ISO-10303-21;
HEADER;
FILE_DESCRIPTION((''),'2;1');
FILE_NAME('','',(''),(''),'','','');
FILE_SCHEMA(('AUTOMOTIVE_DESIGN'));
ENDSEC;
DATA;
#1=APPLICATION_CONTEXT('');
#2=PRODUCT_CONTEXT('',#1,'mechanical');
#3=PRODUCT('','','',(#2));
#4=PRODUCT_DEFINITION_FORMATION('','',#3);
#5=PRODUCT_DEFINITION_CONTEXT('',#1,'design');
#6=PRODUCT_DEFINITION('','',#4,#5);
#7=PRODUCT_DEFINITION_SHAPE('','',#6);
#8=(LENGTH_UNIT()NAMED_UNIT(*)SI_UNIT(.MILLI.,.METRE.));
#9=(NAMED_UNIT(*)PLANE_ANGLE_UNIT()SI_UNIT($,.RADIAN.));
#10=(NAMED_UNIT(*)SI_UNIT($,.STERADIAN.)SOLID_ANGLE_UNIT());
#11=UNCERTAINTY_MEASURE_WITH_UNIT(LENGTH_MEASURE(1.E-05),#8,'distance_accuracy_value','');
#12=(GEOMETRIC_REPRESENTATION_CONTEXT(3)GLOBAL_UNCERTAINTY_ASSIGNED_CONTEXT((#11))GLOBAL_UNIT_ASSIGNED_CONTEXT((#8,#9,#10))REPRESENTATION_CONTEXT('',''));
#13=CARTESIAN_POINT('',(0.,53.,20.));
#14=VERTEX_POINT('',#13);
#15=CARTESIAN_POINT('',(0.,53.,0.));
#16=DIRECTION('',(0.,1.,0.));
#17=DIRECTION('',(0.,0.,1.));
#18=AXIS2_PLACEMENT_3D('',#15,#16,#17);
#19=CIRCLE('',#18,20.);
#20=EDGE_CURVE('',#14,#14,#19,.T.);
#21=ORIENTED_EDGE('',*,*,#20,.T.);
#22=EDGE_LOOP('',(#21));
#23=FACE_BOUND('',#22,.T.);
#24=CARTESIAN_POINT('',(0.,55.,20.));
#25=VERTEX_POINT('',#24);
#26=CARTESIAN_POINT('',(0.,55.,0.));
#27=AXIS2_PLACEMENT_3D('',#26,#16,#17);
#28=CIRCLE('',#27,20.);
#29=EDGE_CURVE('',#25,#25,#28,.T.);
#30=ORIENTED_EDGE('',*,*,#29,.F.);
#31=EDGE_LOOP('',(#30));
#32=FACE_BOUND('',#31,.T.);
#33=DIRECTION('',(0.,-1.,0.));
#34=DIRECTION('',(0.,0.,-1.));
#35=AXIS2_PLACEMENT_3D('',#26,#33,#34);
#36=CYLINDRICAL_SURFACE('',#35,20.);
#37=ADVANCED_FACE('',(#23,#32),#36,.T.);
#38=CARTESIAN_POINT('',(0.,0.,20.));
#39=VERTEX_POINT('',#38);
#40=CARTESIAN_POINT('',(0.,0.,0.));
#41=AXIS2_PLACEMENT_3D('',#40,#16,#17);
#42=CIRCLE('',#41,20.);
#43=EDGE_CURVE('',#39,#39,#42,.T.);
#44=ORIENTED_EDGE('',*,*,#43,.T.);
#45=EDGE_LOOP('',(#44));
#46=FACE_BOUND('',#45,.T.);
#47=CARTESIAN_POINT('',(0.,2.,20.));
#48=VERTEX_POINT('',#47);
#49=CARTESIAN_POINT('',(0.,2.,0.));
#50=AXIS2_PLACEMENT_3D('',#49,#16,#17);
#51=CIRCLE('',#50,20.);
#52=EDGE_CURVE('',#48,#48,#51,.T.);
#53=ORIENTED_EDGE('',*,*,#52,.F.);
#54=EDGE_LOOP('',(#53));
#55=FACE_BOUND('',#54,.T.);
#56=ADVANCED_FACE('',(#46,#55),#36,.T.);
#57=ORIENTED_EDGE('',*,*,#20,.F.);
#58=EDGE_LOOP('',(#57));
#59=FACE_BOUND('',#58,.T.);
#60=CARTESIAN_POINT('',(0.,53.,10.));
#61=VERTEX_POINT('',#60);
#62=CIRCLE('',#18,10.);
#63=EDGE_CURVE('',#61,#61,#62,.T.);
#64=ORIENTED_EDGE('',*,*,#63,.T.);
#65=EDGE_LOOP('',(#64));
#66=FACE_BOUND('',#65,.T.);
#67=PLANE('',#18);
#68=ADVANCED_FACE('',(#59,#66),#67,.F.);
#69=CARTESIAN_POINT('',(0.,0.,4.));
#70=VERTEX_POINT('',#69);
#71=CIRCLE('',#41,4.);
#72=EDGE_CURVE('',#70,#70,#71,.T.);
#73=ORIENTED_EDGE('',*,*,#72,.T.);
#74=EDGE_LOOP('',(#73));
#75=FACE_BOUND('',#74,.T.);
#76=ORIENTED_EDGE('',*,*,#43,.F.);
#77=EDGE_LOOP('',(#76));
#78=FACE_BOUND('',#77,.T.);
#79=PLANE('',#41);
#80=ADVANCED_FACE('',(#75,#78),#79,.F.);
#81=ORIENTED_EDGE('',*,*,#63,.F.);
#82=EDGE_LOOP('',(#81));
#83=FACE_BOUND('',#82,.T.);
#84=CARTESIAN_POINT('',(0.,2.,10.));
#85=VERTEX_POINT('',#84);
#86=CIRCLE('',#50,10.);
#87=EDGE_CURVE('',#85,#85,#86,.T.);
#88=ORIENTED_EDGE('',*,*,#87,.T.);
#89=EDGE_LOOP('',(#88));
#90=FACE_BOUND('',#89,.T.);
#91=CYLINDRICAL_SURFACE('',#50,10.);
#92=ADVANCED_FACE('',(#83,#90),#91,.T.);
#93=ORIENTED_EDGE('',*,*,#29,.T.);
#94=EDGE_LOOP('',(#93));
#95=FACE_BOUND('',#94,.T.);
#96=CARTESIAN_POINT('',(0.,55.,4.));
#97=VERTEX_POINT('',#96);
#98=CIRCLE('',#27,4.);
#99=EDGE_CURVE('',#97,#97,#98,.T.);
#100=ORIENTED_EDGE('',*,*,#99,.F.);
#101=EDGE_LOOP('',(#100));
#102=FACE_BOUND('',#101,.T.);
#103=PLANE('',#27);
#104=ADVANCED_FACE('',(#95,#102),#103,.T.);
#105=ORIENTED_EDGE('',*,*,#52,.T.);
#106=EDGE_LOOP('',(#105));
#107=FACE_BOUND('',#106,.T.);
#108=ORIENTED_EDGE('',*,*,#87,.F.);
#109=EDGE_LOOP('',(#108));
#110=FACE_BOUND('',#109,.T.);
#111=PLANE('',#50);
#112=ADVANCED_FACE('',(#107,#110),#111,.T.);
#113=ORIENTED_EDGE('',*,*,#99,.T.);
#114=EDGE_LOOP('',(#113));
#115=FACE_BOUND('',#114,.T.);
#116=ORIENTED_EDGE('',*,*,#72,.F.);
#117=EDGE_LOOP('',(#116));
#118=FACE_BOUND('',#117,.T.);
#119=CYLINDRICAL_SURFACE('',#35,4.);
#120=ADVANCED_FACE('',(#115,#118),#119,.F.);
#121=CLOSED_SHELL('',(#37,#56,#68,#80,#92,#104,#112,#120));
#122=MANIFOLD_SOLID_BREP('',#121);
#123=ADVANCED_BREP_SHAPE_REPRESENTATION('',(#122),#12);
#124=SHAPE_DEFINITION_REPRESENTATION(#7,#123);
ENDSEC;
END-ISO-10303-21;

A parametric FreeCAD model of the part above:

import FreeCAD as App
import Part
import Sketcher

doc = App.newDocument("Part")
body = doc.addObject("PartDesign::Body", "Body")

# Sketch on XZ plane
sketch1 = body.newObject("Sketcher::SketchObject", "Sketch")
sketch1.AttachmentSupport = (doc.getObject("XZ_Plane"), [""])
sketch1.MapMode = "FlatFace"
sketch1.addGeometry(Part.Circle(App.Vector(0, 0, 0), App.Vector(0, 0, 1), 20), False)
sketch1.addGeometry(Part.Circle(App.Vector(0, 0, 0), App.Vector(0, 0, 1), 4), False)
sketch1.addConstraint(Sketcher.Constraint("Coincident", 0, 3, -1, 1))
sketch1.addConstraint(Sketcher.Constraint("Coincident", 1, 3, -1, 1))
sketch1.addConstraint(Sketcher.Constraint("Diameter", 0, 40.0))
sketch1.addConstraint(Sketcher.Constraint("Diameter", 1, 8.0))
pad1 = body.newObject("PartDesign::Pad", "Pad")
pad1.Profile = sketch1
pad1.Length = 55
pad1.Reversed = True

# Sketch on XZ plane
sketch2 = body.newObject("Sketcher::SketchObject", "Sketch001")
sketch2.AttachmentSupport = (doc.getObject("XZ_Plane"), [""])
sketch2.MapMode = "FlatFace"
sketch2.AttachmentOffset = App.Placement(App.Vector(0, 0, -2), App.Rotation())
sketch2.addGeometry(Part.Circle(App.Vector(0, 0, 0), App.Vector(0, 0, 1), 20), False)
sketch2.addGeometry(Part.Circle(App.Vector(0, 0, 0), App.Vector(0, 0, 1), 10), False)
sketch2.addConstraint(Sketcher.Constraint("Coincident", 0, 3, -1, 1))
sketch2.addConstraint(Sketcher.Constraint("Coincident", 1, 3, -1, 1))
sketch2.addConstraint(Sketcher.Constraint("Diameter", 0, 40.0))
sketch2.addConstraint(Sketcher.Constraint("Diameter", 1, 20.0))
pocket1 = body.newObject("PartDesign::Pocket", "Pocket")
pocket1.Profile = sketch2
pocket1.Length = 51

doc.recompute()
